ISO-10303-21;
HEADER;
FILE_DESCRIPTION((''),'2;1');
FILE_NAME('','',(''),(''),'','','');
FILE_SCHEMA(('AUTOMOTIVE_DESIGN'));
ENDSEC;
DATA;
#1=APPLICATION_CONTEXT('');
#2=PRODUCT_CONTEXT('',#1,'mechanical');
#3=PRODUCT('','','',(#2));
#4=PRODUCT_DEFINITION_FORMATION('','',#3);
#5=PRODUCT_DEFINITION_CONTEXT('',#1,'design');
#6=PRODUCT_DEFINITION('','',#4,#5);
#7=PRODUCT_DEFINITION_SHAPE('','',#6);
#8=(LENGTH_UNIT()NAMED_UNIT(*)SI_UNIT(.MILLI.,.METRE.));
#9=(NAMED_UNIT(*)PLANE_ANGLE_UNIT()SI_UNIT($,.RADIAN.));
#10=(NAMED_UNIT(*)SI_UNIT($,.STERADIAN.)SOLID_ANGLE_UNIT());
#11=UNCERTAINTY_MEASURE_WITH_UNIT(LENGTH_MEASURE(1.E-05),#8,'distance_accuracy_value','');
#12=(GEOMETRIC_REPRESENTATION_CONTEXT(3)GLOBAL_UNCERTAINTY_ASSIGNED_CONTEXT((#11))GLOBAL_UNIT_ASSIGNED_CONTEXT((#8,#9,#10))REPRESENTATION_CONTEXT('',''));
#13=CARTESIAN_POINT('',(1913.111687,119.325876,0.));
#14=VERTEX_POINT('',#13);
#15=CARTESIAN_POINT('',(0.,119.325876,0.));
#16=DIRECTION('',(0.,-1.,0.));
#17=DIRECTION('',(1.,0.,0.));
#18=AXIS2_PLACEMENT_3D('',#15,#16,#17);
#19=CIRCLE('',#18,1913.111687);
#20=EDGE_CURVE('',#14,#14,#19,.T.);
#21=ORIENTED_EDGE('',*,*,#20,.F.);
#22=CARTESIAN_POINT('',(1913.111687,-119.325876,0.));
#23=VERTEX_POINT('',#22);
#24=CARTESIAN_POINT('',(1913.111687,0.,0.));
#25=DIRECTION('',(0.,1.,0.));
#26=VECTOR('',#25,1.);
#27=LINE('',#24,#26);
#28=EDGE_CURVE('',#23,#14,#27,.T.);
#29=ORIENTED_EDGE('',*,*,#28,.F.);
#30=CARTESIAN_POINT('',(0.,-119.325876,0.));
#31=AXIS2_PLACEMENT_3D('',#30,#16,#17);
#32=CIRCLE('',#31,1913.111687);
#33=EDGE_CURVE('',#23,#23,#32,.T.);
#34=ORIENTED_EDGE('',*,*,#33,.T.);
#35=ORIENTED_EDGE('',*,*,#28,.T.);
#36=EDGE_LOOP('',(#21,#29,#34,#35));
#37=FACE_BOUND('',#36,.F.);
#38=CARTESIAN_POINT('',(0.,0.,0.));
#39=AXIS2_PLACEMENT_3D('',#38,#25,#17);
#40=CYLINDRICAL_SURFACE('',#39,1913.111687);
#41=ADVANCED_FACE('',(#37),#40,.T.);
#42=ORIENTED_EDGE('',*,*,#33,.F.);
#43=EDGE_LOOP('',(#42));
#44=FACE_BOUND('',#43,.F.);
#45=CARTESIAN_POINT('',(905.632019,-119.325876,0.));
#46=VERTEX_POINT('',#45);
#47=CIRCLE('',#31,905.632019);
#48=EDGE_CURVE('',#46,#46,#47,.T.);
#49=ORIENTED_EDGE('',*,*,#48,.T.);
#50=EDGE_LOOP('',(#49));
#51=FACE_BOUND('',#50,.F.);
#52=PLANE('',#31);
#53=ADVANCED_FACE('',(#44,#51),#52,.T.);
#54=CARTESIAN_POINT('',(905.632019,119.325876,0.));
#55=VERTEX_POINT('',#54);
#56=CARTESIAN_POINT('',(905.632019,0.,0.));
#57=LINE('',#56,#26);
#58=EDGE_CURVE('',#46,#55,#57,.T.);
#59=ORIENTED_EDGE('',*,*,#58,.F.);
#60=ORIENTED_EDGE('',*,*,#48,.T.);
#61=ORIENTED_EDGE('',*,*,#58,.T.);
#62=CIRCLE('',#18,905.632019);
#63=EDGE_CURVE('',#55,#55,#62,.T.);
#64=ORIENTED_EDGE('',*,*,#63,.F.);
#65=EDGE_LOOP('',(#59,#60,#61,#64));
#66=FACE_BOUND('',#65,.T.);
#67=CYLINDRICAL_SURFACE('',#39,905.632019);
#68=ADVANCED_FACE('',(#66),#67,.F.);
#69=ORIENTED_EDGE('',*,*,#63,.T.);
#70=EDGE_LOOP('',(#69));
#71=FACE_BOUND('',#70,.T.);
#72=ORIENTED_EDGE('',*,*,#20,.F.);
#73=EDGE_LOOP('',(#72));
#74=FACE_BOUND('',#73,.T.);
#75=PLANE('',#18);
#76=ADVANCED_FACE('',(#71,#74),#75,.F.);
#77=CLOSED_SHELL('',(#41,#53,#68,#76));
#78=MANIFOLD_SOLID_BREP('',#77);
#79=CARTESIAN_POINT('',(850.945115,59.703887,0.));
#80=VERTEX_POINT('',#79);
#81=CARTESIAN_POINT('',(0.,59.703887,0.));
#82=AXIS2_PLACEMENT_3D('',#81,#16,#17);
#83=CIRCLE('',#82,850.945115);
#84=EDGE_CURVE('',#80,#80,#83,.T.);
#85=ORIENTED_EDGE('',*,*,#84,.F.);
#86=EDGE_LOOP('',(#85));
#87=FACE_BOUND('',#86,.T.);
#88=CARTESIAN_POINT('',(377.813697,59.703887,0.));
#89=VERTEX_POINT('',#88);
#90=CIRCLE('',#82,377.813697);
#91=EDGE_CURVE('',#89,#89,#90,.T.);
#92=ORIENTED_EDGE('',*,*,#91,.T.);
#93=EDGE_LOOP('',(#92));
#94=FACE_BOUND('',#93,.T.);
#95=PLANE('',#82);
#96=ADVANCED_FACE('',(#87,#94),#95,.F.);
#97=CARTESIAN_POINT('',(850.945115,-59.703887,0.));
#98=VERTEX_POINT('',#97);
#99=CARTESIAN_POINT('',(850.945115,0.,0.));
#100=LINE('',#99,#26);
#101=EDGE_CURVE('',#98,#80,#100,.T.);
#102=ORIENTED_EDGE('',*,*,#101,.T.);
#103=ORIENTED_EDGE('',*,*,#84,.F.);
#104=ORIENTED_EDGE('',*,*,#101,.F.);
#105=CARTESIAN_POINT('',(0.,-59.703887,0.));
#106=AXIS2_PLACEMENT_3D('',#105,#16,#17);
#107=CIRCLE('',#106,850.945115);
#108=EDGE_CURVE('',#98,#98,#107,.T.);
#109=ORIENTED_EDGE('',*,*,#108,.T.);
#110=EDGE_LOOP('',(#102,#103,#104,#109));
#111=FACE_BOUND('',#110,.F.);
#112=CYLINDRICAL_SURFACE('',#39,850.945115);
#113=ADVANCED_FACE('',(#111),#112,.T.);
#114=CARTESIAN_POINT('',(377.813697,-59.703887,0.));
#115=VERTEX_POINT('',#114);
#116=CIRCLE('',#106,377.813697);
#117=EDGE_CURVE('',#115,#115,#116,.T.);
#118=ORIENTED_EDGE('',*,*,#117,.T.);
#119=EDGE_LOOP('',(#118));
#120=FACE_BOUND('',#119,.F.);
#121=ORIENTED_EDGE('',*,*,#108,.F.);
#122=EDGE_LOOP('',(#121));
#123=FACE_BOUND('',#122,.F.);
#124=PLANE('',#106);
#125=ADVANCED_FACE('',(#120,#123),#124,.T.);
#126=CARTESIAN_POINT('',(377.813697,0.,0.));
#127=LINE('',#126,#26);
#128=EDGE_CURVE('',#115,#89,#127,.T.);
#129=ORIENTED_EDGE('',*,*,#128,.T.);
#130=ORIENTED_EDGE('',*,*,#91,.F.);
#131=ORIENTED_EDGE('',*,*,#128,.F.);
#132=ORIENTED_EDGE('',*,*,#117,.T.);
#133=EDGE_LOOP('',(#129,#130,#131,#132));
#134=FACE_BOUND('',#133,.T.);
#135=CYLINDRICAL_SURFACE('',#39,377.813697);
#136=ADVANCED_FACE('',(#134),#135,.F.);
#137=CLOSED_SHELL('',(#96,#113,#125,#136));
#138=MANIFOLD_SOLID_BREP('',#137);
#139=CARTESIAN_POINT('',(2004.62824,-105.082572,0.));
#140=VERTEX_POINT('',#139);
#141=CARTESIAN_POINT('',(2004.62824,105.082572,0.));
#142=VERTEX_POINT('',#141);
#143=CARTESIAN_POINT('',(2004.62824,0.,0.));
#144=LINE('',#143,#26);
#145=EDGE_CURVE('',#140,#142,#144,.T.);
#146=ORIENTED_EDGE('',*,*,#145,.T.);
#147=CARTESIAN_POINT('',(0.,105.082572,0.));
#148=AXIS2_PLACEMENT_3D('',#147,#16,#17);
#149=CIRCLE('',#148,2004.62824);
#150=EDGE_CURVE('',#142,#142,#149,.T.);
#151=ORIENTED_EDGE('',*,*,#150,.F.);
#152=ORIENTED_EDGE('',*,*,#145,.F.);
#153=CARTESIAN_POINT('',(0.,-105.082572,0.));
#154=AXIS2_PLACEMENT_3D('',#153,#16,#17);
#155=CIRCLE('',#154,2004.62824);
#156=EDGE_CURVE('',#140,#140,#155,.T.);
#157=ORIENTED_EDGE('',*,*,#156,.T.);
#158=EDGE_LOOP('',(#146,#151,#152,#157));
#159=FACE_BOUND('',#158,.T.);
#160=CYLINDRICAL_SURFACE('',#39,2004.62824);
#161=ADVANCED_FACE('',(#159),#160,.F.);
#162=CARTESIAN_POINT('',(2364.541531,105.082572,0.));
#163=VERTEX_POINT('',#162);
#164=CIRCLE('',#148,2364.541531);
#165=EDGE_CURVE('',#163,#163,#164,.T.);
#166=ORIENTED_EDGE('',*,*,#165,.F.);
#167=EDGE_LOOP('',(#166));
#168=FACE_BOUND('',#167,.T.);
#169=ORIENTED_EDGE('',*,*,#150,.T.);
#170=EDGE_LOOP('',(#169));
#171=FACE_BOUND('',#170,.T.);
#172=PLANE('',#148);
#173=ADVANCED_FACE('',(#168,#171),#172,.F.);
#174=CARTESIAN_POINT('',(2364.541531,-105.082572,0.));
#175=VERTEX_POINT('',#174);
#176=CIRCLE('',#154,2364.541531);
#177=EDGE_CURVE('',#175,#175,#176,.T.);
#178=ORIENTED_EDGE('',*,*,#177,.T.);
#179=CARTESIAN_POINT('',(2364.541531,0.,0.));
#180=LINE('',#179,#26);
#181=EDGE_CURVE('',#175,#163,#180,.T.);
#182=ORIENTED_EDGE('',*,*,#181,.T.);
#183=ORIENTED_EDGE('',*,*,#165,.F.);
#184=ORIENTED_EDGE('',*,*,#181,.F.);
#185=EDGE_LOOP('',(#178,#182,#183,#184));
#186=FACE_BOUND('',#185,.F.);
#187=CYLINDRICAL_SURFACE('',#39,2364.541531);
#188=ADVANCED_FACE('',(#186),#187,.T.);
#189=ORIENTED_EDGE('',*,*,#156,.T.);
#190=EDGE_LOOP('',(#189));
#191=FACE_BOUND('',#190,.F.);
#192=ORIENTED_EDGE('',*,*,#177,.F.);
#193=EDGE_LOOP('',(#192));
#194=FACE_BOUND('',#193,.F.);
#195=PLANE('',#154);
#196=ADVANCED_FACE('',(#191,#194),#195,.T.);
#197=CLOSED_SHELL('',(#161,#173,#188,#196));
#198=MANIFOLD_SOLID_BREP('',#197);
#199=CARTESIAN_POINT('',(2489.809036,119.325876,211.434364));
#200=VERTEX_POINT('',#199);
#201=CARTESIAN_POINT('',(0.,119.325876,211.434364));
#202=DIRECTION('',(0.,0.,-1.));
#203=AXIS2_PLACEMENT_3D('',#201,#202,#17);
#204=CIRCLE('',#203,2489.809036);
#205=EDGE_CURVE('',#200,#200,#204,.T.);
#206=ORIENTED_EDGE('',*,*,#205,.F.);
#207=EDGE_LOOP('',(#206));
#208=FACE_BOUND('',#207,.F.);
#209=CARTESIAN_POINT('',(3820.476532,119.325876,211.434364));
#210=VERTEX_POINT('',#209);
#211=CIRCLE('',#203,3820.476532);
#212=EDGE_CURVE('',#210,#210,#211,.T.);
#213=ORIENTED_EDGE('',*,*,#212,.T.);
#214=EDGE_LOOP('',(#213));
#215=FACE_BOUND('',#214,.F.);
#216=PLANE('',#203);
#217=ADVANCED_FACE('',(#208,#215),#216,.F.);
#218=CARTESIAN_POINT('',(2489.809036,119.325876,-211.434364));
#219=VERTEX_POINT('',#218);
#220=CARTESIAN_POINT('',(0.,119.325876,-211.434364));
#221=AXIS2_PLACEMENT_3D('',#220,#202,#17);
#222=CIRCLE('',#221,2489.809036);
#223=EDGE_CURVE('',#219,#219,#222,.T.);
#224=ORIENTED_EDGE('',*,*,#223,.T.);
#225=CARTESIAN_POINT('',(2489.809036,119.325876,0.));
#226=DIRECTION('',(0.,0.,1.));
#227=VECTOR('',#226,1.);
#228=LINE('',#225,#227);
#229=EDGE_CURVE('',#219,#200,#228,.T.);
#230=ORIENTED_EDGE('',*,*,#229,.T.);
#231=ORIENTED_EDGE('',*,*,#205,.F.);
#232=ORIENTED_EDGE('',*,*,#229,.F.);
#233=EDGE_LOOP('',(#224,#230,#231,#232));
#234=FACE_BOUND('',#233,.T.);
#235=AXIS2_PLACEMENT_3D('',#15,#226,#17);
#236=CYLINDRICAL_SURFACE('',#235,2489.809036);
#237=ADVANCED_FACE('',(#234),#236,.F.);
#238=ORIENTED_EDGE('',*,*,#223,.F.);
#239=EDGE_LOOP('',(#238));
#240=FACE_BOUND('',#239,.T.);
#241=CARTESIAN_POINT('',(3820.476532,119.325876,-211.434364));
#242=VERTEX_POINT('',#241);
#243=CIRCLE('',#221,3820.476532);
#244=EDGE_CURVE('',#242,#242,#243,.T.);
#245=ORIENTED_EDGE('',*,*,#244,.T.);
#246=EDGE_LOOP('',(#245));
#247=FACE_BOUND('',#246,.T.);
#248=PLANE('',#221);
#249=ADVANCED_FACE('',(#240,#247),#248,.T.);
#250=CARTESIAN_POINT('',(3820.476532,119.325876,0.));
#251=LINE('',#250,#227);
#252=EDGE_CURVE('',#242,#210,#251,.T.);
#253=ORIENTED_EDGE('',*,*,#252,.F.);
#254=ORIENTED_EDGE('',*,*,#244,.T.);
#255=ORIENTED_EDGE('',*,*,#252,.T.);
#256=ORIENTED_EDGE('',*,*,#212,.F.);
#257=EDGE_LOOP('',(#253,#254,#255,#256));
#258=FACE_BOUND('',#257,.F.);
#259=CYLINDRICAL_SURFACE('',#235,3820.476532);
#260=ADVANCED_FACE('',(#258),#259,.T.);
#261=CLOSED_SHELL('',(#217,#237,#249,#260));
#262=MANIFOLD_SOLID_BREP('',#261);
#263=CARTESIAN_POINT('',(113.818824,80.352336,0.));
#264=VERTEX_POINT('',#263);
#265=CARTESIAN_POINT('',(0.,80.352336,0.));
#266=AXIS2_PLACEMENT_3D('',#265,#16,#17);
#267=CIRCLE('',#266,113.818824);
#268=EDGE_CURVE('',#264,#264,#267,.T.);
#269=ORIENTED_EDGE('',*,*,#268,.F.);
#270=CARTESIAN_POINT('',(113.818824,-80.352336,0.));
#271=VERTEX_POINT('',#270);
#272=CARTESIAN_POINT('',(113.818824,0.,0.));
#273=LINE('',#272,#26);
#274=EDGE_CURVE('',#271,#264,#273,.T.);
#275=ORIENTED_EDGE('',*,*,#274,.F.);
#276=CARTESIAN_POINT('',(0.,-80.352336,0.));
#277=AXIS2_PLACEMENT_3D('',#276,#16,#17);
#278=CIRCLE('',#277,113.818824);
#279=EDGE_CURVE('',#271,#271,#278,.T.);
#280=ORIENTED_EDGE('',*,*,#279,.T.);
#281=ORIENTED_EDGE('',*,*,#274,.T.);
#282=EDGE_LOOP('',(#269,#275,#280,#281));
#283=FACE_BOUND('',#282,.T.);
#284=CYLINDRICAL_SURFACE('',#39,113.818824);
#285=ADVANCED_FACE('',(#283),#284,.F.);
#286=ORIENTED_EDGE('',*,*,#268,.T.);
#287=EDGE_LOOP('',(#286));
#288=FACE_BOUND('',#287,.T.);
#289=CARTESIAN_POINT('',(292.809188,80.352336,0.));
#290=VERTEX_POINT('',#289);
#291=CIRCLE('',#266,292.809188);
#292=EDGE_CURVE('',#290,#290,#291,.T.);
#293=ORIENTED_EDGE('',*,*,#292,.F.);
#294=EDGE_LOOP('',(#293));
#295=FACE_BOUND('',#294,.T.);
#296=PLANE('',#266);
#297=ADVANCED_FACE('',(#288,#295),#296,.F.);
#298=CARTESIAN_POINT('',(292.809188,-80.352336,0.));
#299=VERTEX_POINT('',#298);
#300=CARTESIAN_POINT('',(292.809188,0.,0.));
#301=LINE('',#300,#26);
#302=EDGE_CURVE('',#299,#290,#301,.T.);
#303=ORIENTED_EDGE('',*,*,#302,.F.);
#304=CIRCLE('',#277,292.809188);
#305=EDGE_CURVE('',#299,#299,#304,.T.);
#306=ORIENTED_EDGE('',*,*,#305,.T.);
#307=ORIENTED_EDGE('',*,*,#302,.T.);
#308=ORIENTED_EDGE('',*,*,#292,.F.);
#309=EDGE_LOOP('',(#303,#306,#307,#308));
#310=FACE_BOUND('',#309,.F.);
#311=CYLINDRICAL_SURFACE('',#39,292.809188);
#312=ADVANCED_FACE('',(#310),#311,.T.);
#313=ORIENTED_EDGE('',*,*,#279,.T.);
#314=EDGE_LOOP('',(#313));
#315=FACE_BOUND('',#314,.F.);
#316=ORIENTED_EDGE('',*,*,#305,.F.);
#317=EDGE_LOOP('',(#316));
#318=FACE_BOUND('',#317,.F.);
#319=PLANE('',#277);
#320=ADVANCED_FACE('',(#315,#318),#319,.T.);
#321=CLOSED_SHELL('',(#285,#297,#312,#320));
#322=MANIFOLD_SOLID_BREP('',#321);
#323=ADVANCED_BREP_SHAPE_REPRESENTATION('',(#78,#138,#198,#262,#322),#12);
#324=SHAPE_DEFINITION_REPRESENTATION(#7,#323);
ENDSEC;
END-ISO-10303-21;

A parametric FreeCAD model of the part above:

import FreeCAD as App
import Part
import Sketcher
Q = App.Units.Quantity


def add_polygon(sketch, points):
    """Adds a closed chain of lines whose ends are joined by coincident constraints."""
    first, n = sketch.GeometryCount, len(points)
    for a, b in zip(points, points[1:] + points[:1]):
        sketch.addGeometry(Part.LineSegment(App.Vector(*a, 0), App.Vector(*b, 0)), False)
    for i in range(n):
        sketch.addConstraint(Sketcher.Constraint("Coincident", first + i, 2, first + (i + 1) % n, 1))

doc = App.newDocument("Part")
body = doc.addObject("PartDesign::Body", "Body")

sketch1 = body.newObject("Sketcher::SketchObject", "Sketch")
sketch1.AttachmentSupport = (doc.getObject("XY_Plane"), [""])
sketch1.MapMode = "FlatFace"
add_polygon(sketch1, [(114, 80), (114, -80), (293, -80), (293, 80)])
sketch1.addConstraint(Sketcher.Constraint("Vertical", 0))
sketch1.addConstraint(Sketcher.Constraint("Horizontal", 1))
sketch1.addConstraint(Sketcher.Constraint("Vertical", 2))
sketch1.addConstraint(Sketcher.Constraint("Horizontal", 3))
sketch1.addConstraint(Sketcher.Constraint("DistanceY", 0, 2, 0, 1, Q("160.704672 mm")))
sketch1.addConstraint(Sketcher.Constraint("DistanceX", 1, 1, 1, 2, Q("178.990364 mm")))
sketch1.addConstraint(Sketcher.Constraint("DistanceX", -1, 1, 1, 2, Q("292.809188 mm")))
sketch1.addConstraint(Sketcher.Constraint("DistanceY", 0, 2, -1, 1, Q("80.352336 mm")))
revolution = body.newObject("PartDesign::Revolution", "Revolution")
revolution.Profile = sketch1
revolution.ReferenceAxis = (sketch1, ["V_Axis"])
revolution.Angle = 360
body2 = doc.addObject("PartDesign::Body", "Body001")

sketch2 = body2.newObject("Sketcher::SketchObject", "Sketch001")
sketch2.AttachmentSupport = (doc.getObject("XY_Plane001"), [""])
sketch2.MapMode = "FlatFace"
add_polygon(sketch2, [(378, 60), (378, -60), (851, -60), (851, 60)])
sketch2.addConstraint(Sketcher.Constraint("Vertical", 0))
sketch2.addConstraint(Sketcher.Constraint("Horizontal", 1))
sketch2.addConstraint(Sketcher.Constraint("Vertical", 2))
sketch2.addConstraint(Sketcher.Constraint("Horizontal", 3))
sketch2.addConstraint(Sketcher.Constraint("DistanceX", 1, 1, 1, 2, Q("473.131418 mm")))
sketch2.addConstraint(Sketcher.Constraint("DistanceY", 0, 2, 0, 1, Q("119.407774 mm")))
sketch2.addConstraint(Sketcher.Constraint("DistanceX", -1, 1, 0, 2, Q("377.813697 mm")))
sketch2.addConstraint(Sketcher.Constraint("DistanceY", 0, 2, -1, 1, Q("59.703887 mm")))
revolution2 = body2.newObject("PartDesign::Revolution", "Revolution001")
revolution2.Profile = sketch2
revolution2.ReferenceAxis = (sketch2, ["V_Axis"])
revolution2.Angle = 360
body3 = doc.addObject("PartDesign::Body", "Body002")

sketch3 = body3.newObject("Sketcher::SketchObject", "Sketch002")
sketch3.AttachmentSupport = (doc.getObject("XY_Plane002"), [""])
sketch3.MapMode = "FlatFace"
add_polygon(sketch3, [(906, 119), (906, -119), (1913, -119), (1913, 119)])
sketch3.addConstraint(Sketcher.Constraint("Vertical", 0))
sketch3.addConstraint(Sketcher.Constraint("Horizontal", 1))
sketch3.addConstraint(Sketcher.Constraint("Vertical", 2))
sketch3.addConstraint(Sketcher.Constraint("Horizontal", 3))
sketch3.addConstraint(Sketcher.Constraint("DistanceX", 1, 1, 1, 2, Q("1007.479668 mm")))
sketch3.addConstraint(Sketcher.Constraint("DistanceY", 0, 2, 0, 1, Q("238.651752 mm")))
sketch3.addConstraint(Sketcher.Constraint("DistanceX", -1, 1, 0, 2, Q("905.632019 mm")))
sketch3.addConstraint(Sketcher.Constraint("DistanceY", 0, 2, -1, 1, Q("119.325876 mm")))
revolution3 = body3.newObject("PartDesign::Revolution", "Revolution002")
revolution3.Profile = sketch3
revolution3.ReferenceAxis = (sketch3, ["V_Axis"])
revolution3.Angle = 360
body4 = doc.addObject("PartDesign::Body", "Body003")

sketch4 = body4.newObject("Sketcher::SketchObject", "Sketch003")
sketch4.AttachmentSupport = (doc.getObject("XY_Plane003"), [""])
sketch4.MapMode = "FlatFace"
add_polygon(sketch4, [(2005, 105), (2005, -105), (2365, -105), (2365, 105)])
sketch4.addConstraint(Sketcher.Constraint("Vertical", 0))
sketch4.addConstraint(Sketcher.Constraint("Horizontal", 1))
sketch4.addConstraint(Sketcher.Constraint("Vertical", 2))
sketch4.addConstraint(Sketcher.Constraint("Horizontal", 3))
sketch4.addConstraint(Sketcher.Constraint("DistanceX", 1, 1, 1, 2, Q("359.913291 mm")))
sketch4.addConstraint(Sketcher.Constraint("DistanceY", 0, 2, 0, 1, Q("210.165144 mm")))
sketch4.addConstraint(Sketcher.Constraint("DistanceX", -1, 1, 0, 2, Q("2004.62824 mm")))
sketch4.addConstraint(Sketcher.Constraint("DistanceY", 0, 2, -1, 1, Q("105.082572 mm")))
revolution4 = body4.newObject("PartDesign::Revolution", "Revolution003")
revolution4.Profile = sketch4
revolution4.ReferenceAxis = (sketch4, ["V_Axis"])
revolution4.Angle = 360
body5 = doc.addObject("PartDesign::Body", "Body004")

sketch5 = body5.newObject("Sketcher::SketchObject", "Sketch004")
sketch5.AttachmentSupport = (doc.getObject("XZ_Plane004"), [""])
sketch5.MapMode = "FlatFace"
sketch5.AttachmentOffset = App.Placement(App.Vector(0, 0, -119.325876), App.Rotation())
add_polygon(sketch5, [(3820, 211), (3820, -211), (2490, -211), (2490, 211)])
sketch5.addConstraint(Sketcher.Constraint("Vertical", 0))
sketch5.addConstraint(Sketcher.Constraint("Horizontal", 1))
sketch5.addConstraint(Sketcher.Constraint("Vertical", 2))
sketch5.addConstraint(Sketcher.Constraint("Horizontal", 3))
sketch5.addConstraint(Sketcher.Constraint("DistanceX", 1, 2, 1, 1, Q("1330.667496 mm")))
sketch5.addConstraint(Sketcher.Constraint("DistanceY", 0, 2, 0, 1, Q("422.868728 mm")))
sketch5.addConstraint(Sketcher.Constraint("DistanceX", -1, 1, 0, 2, Q("3820.476532 mm")))
sketch5.addConstraint(Sketcher.Constraint("DistanceY", 0, 2, -1, 1, Q("211.434364 mm")))
revolution5 = body5.newObject("PartDesign::Revolution", "Revolution004")
revolution5.Profile = sketch5
revolution5.ReferenceAxis = (sketch5, ["V_Axis"])
revolution5.Angle = 360

doc.recompute()
